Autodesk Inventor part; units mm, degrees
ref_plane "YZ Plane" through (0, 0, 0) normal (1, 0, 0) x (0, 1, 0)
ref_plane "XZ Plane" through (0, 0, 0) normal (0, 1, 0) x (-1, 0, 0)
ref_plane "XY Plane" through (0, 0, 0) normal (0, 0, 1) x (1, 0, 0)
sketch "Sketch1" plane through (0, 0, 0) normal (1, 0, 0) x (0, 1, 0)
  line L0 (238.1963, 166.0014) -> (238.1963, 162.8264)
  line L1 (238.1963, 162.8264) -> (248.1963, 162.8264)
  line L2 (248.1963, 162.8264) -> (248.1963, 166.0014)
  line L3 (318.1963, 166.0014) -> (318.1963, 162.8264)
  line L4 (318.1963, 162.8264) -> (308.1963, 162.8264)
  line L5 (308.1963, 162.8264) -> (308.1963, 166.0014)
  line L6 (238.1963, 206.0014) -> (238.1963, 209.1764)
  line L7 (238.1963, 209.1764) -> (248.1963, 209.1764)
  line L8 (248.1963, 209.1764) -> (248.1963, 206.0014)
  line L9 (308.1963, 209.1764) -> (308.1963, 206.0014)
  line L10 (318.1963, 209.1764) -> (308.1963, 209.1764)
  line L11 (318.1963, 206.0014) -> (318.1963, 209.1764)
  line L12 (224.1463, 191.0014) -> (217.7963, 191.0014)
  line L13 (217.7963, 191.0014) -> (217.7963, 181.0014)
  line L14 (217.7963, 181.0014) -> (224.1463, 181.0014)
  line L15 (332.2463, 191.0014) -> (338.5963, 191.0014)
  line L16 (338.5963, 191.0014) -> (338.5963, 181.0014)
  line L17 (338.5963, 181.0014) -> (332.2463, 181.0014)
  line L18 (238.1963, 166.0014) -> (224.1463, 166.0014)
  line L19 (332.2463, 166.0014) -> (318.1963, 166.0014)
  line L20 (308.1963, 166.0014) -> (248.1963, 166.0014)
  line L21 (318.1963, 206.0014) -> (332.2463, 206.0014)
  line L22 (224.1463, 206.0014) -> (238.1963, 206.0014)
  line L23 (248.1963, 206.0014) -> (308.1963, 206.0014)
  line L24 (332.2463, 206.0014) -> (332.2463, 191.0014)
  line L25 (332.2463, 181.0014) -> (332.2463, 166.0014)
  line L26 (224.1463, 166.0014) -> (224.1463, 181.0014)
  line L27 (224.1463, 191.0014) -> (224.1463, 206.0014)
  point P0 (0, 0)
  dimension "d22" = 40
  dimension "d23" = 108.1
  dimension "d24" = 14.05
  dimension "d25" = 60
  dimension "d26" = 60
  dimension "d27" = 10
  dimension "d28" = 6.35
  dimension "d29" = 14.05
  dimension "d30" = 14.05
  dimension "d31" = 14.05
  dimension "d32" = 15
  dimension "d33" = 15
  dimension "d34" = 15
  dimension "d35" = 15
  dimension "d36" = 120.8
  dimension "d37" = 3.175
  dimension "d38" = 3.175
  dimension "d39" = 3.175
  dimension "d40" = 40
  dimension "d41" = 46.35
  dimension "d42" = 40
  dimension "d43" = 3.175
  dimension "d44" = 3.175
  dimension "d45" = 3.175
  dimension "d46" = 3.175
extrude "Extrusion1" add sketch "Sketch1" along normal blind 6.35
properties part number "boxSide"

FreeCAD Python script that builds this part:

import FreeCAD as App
import Part
import Sketcher
Q = App.Units.Quantity

doc = App.newDocument("Part")
body = doc.addObject("PartDesign::Body", "Body")

# Sketch on YZ plane
sketch1 = body.newObject("Sketcher::SketchObject", "Sketch")
sketch1.AttachmentSupport = (doc.getObject("YZ_Plane"), [""])
sketch1.MapMode = "FlatFace"
sketch1.addGeometry([
    Part.LineSegment(App.Vector(224.1, 166, 0), App.Vector(238.2, 166, 0)),  # 0
    Part.LineSegment(App.Vector(238.2, 166, 0), App.Vector(238.2, 162.8, 0)),  # 1
    Part.LineSegment(App.Vector(238.2, 162.8, 0), App.Vector(248.2, 162.8, 0)),  # 2
    Part.LineSegment(App.Vector(248.2, 162.8, 0), App.Vector(248.2, 166, 0)),  # 3
    Part.LineSegment(App.Vector(248.2, 166, 0), App.Vector(308.2, 166, 0)),  # 4
    Part.LineSegment(App.Vector(308.2, 166, 0), App.Vector(308.2, 162.8, 0)),  # 5
    Part.LineSegment(App.Vector(308.2, 162.8, 0), App.Vector(318.2, 162.8, 0)),  # 6
    Part.LineSegment(App.Vector(318.2, 162.8, 0), App.Vector(318.2, 166, 0)),  # 7
    Part.LineSegment(App.Vector(318.2, 166, 0), App.Vector(332.2, 166, 0)),  # 8
    Part.LineSegment(App.Vector(332.2, 166, 0), App.Vector(332.2, 181, 0)),  # 9
    Part.LineSegment(App.Vector(332.2, 181, 0), App.Vector(338.6, 181, 0)),  # 10
    Part.LineSegment(App.Vector(338.6, 181, 0), App.Vector(338.6, 191, 0)),  # 11
    Part.LineSegment(App.Vector(338.6, 191, 0), App.Vector(332.2, 191, 0)),  # 12
    Part.LineSegment(App.Vector(332.2, 191, 0), App.Vector(332.2, 206, 0)),  # 13
    Part.LineSegment(App.Vector(332.2, 206, 0), App.Vector(318.2, 206, 0)),  # 14
    Part.LineSegment(App.Vector(318.2, 206, 0), App.Vector(318.2, 209.2, 0)),  # 15
    Part.LineSegment(App.Vector(318.2, 209.2, 0), App.Vector(308.2, 209.2, 0)),  # 16
    Part.LineSegment(App.Vector(308.2, 209.2, 0), App.Vector(308.2, 206, 0)),  # 17
    Part.LineSegment(App.Vector(308.2, 206, 0), App.Vector(248.2, 206, 0)),  # 18
    Part.LineSegment(App.Vector(248.2, 206, 0), App.Vector(248.2, 209.2, 0)),  # 19
    Part.LineSegment(App.Vector(248.2, 209.2, 0), App.Vector(238.2, 209.2, 0)),  # 20
    Part.LineSegment(App.Vector(238.2, 209.2, 0), App.Vector(238.2, 206, 0)),  # 21
    Part.LineSegment(App.Vector(238.2, 206, 0), App.Vector(224.1, 206, 0)),  # 22
    Part.LineSegment(App.Vector(224.1, 206, 0), App.Vector(224.1, 191, 0)),  # 23
    Part.LineSegment(App.Vector(224.1, 191, 0), App.Vector(217.8, 191, 0)),  # 24
    Part.LineSegment(App.Vector(217.8, 191, 0), App.Vector(217.8, 181, 0)),  # 25
    Part.LineSegment(App.Vector(217.8, 181, 0), App.Vector(224.1, 181, 0)),  # 26
    Part.LineSegment(App.Vector(224.1, 181, 0), App.Vector(224.1, 166, 0)),  # 27
], False)
sketch1.addConstraint([
    Sketcher.Constraint("Coincident", 0, 2, 1, 1),
    Sketcher.Constraint("Coincident", 1, 2, 2, 1),
    Sketcher.Constraint("Coincident", 2, 2, 3, 1),
    Sketcher.Constraint("Coincident", 3, 2, 4, 1),
    Sketcher.Constraint("Coincident", 4, 2, 5, 1),
    Sketcher.Constraint("Coincident", 5, 2, 6, 1),
    Sketcher.Constraint("Coincident", 6, 2, 7, 1),
    Sketcher.Constraint("Coincident", 7, 2, 8, 1),
    Sketcher.Constraint("Coincident", 8, 2, 9, 1),
    Sketcher.Constraint("Coincident", 9, 2, 10, 1),
    Sketcher.Constraint("Coincident", 10, 2, 11, 1),
    Sketcher.Constraint("Coincident", 11, 2, 12, 1),
    Sketcher.Constraint("Coincident", 12, 2, 13, 1),
    Sketcher.Constraint("Coincident", 13, 2, 14, 1),
    Sketcher.Constraint("Coincident", 14, 2, 15, 1),
    Sketcher.Constraint("Coincident", 15, 2, 16, 1),
    Sketcher.Constraint("Coincident", 16, 2, 17, 1),
    Sketcher.Constraint("Coincident", 17, 2, 18, 1),
    Sketcher.Constraint("Coincident", 18, 2, 19, 1),
    Sketcher.Constraint("Coincident", 19, 2, 20, 1),
    Sketcher.Constraint("Coincident", 20, 2, 21, 1),
    Sketcher.Constraint("Coincident", 21, 2, 22, 1),
    Sketcher.Constraint("Coincident", 22, 2, 23, 1),
    Sketcher.Constraint("Coincident", 23, 2, 24, 1),
    Sketcher.Constraint("Coincident", 24, 2, 25, 1),
    Sketcher.Constraint("Coincident", 25, 2, 26, 1),
    Sketcher.Constraint("Coincident", 26, 2, 27, 1),
    Sketcher.Constraint("Coincident", 27, 2, 0, 1),
    Sketcher.Constraint("Horizontal", 0),
    Sketcher.Constraint("Vertical", 1),
    Sketcher.Constraint("Horizontal", 2),
    Sketcher.Constraint("Vertical", 3),
    Sketcher.Constraint("Horizontal", 4),
    Sketcher.Constraint("Vertical", 5),
    Sketcher.Constraint("Horizontal", 6),
    Sketcher.Constraint("Vertical", 7),
    Sketcher.Constraint("Horizontal", 8),
    Sketcher.Constraint("Vertical", 9),
    Sketcher.Constraint("Horizontal", 10),
    Sketcher.Constraint("Vertical", 11),
    Sketcher.Constraint("Horizontal", 12),
    Sketcher.Constraint("Vertical", 13),
    Sketcher.Constraint("Horizontal", 14),
    Sketcher.Constraint("Vertical", 15),
    Sketcher.Constraint("Horizontal", 16),
    Sketcher.Constraint("Vertical", 17),
    Sketcher.Constraint("Horizontal", 18),
    Sketcher.Constraint("Vertical", 19),
    Sketcher.Constraint("Horizontal", 20),
    Sketcher.Constraint("Vertical", 21),
    Sketcher.Constraint("Horizontal", 22),
    Sketcher.Constraint("Vertical", 23),
    Sketcher.Constraint("Horizontal", 24),
    Sketcher.Constraint("Vertical", 25),
    Sketcher.Constraint("Horizontal", 26),
    Sketcher.Constraint("Vertical", 27),
    Sketcher.Constraint("Horizontal", 0, 2, 3, 2),
    Sketcher.Constraint("Horizontal", 2, 2, 5, 2),
    Sketcher.Constraint("Horizontal", 4, 2, 7, 2),
    Sketcher.Constraint("Horizontal", 14, 2, 17, 2),
    Sketcher.Constraint("Horizontal", 16, 2, 19, 2),
    Sketcher.Constraint("Horizontal", 18, 2, 21, 2),
    Sketcher.Constraint("Horizontal", 12, 2, 23, 2),
    Sketcher.Constraint("Horizontal", 10, 2, 25, 2),
    Sketcher.Constraint("Vertical", 9, 2, 12, 2),
    Sketcher.Constraint("Vertical", 7, 2, 14, 2),
    Sketcher.Constraint("Vertical", 5, 2, 16, 2),
    Sketcher.Constraint("Vertical", 3, 2, 18, 2),
    Sketcher.Constraint("Vertical", 1, 2, 20, 2),
    Sketcher.Constraint("Vertical", 23, 2, 26, 2),
    Sketcher.Constraint("Equal", 2, 6),
    Sketcher.Constraint("Equal", 0, 8),
    Sketcher.Constraint("Equal", 12, 24),
    Sketcher.Constraint("Equal", 20, 11),
    Sketcher.Constraint("Equal", 9, 13),
    Sketcher.Constraint("Equal", 7, 15),
    Sketcher.Constraint("DistanceX", 10, 1, 10, 2, Q("0.25 in")),
    Sketcher.Constraint("DistanceY", 1, 2, 1, 1, Q("0.125 in")),
    Sketcher.Constraint("DistanceX", 2, 1, 2, 2, Q("0.3937 in")),
    Sketcher.Constraint("DistanceX", 4, 1, 4, 2, Q("2.3622 in")),
    Sketcher.Constraint("DistanceX", 0, 1, 0, 2, 14.05),
    Sketcher.Constraint("DistanceY", 9, 1, 9, 2, 15.0),
    Sketcher.Constraint("DistanceX", -1, 1, 0, 2, Q("9.3778 in")),
    Sketcher.Constraint("DistanceY", -1, 1, 0, 2, Q("6.5355 in")),
])
pad1 = body.newObject("PartDesign::Pad", "Pad")
pad1.Profile = sketch1
pad1.Length = Q("0.25 in")

doc.recompute()
